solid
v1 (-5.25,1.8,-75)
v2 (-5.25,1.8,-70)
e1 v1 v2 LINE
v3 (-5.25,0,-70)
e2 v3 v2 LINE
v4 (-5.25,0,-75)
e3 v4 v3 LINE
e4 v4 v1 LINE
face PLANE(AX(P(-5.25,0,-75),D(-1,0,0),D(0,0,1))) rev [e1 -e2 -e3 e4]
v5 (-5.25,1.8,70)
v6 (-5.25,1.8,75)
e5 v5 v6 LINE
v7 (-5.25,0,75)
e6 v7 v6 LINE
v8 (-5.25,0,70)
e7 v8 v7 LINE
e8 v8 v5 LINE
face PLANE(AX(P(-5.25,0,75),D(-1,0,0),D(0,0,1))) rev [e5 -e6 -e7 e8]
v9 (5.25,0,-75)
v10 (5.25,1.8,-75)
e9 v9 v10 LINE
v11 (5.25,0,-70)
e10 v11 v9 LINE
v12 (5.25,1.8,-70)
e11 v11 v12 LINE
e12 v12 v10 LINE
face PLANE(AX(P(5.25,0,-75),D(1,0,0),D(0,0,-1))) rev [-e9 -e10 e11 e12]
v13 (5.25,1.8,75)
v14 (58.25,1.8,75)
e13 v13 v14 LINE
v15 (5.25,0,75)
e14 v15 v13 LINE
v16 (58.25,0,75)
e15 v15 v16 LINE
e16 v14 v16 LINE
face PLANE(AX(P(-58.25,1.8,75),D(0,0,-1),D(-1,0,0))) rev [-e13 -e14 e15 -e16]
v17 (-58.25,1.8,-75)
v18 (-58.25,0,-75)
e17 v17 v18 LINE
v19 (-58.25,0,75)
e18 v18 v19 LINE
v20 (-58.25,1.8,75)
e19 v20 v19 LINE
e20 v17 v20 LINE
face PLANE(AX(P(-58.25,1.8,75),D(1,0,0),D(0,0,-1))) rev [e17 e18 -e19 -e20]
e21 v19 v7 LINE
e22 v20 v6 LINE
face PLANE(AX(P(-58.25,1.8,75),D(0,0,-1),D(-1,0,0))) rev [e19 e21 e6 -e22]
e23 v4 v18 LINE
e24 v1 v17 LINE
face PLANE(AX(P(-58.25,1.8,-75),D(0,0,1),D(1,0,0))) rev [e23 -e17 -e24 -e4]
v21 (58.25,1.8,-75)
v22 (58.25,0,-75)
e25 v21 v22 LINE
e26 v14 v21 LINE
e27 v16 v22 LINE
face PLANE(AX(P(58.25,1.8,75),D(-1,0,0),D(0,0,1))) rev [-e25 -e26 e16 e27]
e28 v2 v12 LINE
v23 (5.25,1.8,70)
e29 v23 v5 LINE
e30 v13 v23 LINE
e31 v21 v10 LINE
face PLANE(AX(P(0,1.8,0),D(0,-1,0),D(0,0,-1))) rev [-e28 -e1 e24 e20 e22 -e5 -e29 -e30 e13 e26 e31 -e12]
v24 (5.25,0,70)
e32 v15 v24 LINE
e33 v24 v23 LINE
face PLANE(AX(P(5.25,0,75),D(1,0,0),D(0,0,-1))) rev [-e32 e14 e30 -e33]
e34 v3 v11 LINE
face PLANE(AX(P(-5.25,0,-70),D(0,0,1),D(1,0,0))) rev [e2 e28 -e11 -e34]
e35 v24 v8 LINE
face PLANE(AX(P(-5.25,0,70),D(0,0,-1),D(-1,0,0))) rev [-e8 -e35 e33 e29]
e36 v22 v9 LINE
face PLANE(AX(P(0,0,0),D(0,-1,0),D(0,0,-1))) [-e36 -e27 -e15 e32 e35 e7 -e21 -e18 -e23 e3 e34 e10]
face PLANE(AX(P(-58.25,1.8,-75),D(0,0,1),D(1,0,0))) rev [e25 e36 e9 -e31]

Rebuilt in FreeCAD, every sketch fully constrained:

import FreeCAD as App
import Part
import Sketcher

V = App.Vector
Q = App.Units.Quantity


def add_polygon(sketch, points):
    """Adds a closed chain of lines whose ends are joined by coincident constraints."""
    first, n = sketch.GeometryCount, len(points)
    for a, b in zip(points, points[1:] + points[:1]):
        sketch.addGeometry(Part.LineSegment(App.Vector(*a, 0), App.Vector(*b, 0)), False)
    for i in range(n):
        sketch.addConstraint(Sketcher.Constraint("Coincident", first + i, 2, first + (i + 1) % n, 1))

doc = App.newDocument("Part")
body = doc.addObject("PartDesign::Body", "Body")

sketch1 = body.newObject("Sketcher::SketchObject", "Sketch")
sketch1.AttachmentSupport = (doc.getObject("XZ_Plane"), [""])
sketch1.MapMode = "FlatFace"
add_polygon(sketch1, [(-58, -75), (-58, 75), (58, 75), (58, -75)])
sketch1.addConstraint([
    Sketcher.Constraint("Vertical", 0),
    Sketcher.Constraint("Horizontal", 1),
    Sketcher.Constraint("Vertical", 2),
    Sketcher.Constraint("Horizontal", 3),
    Sketcher.Constraint("Symmetric", 0, 2, 2, 2, -1, 1),
    Sketcher.Constraint("DistanceY", 0, 1, 0, 2, Q("150 mm")),
    Sketcher.Constraint("DistanceX", 1, 1, 1, 2, Q("116.5 mm")),
])
pad1 = body.newObject("PartDesign::Pad", "Pad")
pad1.Profile = sketch1
pad1.Length = 1.8
pad1.Reversed = True

sketch2 = body.newObject("Sketcher::SketchObject", "Sketch001")
sketch2.AttachmentSupport = (doc.getObject("XZ_Plane"), [""])
sketch2.MapMode = "FlatFace"
sketch2.AttachmentOffset = App.Placement(V(0, 0, -1.8), App.Rotation())
add_polygon(sketch2, [(-5, 70), (-5, 75), (5, 75), (5, 70)])
add_polygon(sketch2, [(-5, -75), (-5, -70), (5, -70), (5, -75)])
sketch2.addConstraint([
    Sketcher.Constraint("Vertical", 0),
    Sketcher.Constraint("Horizontal", 1),
    Sketcher.Constraint("Vertical", 2),
    Sketcher.Constraint("Horizontal", 3),
    Sketcher.Constraint("Vertical", 4),
    Sketcher.Constraint("Horizontal", 5),
    Sketcher.Constraint("Vertical", 6),
    Sketcher.Constraint("Horizontal", 7),
    Sketcher.Constraint("Symmetric", 2, 2, 4, 2, -1, 1),
    Sketcher.Constraint("Symmetric", 0, 2, 6, 2, -1, 1),
    Sketcher.Constraint("Vertical", 3, 2, 4, 2),
    Sketcher.Constraint("DistanceY", 0, 1, 0, 2, Q("5 mm")),
    Sketcher.Constraint("DistanceX", 1, 1, 1, 2, Q("10.5 mm")),
    Sketcher.Constraint("DistanceY", -1, 1, 0, 2, Q("75 mm")),
])
pocket1 = body.newObject("PartDesign::Pocket", "Pocket")
pocket1.Profile = sketch2
pocket1.Type = "ThroughAll"
pocket1.Reversed = True

doc.recompute()
